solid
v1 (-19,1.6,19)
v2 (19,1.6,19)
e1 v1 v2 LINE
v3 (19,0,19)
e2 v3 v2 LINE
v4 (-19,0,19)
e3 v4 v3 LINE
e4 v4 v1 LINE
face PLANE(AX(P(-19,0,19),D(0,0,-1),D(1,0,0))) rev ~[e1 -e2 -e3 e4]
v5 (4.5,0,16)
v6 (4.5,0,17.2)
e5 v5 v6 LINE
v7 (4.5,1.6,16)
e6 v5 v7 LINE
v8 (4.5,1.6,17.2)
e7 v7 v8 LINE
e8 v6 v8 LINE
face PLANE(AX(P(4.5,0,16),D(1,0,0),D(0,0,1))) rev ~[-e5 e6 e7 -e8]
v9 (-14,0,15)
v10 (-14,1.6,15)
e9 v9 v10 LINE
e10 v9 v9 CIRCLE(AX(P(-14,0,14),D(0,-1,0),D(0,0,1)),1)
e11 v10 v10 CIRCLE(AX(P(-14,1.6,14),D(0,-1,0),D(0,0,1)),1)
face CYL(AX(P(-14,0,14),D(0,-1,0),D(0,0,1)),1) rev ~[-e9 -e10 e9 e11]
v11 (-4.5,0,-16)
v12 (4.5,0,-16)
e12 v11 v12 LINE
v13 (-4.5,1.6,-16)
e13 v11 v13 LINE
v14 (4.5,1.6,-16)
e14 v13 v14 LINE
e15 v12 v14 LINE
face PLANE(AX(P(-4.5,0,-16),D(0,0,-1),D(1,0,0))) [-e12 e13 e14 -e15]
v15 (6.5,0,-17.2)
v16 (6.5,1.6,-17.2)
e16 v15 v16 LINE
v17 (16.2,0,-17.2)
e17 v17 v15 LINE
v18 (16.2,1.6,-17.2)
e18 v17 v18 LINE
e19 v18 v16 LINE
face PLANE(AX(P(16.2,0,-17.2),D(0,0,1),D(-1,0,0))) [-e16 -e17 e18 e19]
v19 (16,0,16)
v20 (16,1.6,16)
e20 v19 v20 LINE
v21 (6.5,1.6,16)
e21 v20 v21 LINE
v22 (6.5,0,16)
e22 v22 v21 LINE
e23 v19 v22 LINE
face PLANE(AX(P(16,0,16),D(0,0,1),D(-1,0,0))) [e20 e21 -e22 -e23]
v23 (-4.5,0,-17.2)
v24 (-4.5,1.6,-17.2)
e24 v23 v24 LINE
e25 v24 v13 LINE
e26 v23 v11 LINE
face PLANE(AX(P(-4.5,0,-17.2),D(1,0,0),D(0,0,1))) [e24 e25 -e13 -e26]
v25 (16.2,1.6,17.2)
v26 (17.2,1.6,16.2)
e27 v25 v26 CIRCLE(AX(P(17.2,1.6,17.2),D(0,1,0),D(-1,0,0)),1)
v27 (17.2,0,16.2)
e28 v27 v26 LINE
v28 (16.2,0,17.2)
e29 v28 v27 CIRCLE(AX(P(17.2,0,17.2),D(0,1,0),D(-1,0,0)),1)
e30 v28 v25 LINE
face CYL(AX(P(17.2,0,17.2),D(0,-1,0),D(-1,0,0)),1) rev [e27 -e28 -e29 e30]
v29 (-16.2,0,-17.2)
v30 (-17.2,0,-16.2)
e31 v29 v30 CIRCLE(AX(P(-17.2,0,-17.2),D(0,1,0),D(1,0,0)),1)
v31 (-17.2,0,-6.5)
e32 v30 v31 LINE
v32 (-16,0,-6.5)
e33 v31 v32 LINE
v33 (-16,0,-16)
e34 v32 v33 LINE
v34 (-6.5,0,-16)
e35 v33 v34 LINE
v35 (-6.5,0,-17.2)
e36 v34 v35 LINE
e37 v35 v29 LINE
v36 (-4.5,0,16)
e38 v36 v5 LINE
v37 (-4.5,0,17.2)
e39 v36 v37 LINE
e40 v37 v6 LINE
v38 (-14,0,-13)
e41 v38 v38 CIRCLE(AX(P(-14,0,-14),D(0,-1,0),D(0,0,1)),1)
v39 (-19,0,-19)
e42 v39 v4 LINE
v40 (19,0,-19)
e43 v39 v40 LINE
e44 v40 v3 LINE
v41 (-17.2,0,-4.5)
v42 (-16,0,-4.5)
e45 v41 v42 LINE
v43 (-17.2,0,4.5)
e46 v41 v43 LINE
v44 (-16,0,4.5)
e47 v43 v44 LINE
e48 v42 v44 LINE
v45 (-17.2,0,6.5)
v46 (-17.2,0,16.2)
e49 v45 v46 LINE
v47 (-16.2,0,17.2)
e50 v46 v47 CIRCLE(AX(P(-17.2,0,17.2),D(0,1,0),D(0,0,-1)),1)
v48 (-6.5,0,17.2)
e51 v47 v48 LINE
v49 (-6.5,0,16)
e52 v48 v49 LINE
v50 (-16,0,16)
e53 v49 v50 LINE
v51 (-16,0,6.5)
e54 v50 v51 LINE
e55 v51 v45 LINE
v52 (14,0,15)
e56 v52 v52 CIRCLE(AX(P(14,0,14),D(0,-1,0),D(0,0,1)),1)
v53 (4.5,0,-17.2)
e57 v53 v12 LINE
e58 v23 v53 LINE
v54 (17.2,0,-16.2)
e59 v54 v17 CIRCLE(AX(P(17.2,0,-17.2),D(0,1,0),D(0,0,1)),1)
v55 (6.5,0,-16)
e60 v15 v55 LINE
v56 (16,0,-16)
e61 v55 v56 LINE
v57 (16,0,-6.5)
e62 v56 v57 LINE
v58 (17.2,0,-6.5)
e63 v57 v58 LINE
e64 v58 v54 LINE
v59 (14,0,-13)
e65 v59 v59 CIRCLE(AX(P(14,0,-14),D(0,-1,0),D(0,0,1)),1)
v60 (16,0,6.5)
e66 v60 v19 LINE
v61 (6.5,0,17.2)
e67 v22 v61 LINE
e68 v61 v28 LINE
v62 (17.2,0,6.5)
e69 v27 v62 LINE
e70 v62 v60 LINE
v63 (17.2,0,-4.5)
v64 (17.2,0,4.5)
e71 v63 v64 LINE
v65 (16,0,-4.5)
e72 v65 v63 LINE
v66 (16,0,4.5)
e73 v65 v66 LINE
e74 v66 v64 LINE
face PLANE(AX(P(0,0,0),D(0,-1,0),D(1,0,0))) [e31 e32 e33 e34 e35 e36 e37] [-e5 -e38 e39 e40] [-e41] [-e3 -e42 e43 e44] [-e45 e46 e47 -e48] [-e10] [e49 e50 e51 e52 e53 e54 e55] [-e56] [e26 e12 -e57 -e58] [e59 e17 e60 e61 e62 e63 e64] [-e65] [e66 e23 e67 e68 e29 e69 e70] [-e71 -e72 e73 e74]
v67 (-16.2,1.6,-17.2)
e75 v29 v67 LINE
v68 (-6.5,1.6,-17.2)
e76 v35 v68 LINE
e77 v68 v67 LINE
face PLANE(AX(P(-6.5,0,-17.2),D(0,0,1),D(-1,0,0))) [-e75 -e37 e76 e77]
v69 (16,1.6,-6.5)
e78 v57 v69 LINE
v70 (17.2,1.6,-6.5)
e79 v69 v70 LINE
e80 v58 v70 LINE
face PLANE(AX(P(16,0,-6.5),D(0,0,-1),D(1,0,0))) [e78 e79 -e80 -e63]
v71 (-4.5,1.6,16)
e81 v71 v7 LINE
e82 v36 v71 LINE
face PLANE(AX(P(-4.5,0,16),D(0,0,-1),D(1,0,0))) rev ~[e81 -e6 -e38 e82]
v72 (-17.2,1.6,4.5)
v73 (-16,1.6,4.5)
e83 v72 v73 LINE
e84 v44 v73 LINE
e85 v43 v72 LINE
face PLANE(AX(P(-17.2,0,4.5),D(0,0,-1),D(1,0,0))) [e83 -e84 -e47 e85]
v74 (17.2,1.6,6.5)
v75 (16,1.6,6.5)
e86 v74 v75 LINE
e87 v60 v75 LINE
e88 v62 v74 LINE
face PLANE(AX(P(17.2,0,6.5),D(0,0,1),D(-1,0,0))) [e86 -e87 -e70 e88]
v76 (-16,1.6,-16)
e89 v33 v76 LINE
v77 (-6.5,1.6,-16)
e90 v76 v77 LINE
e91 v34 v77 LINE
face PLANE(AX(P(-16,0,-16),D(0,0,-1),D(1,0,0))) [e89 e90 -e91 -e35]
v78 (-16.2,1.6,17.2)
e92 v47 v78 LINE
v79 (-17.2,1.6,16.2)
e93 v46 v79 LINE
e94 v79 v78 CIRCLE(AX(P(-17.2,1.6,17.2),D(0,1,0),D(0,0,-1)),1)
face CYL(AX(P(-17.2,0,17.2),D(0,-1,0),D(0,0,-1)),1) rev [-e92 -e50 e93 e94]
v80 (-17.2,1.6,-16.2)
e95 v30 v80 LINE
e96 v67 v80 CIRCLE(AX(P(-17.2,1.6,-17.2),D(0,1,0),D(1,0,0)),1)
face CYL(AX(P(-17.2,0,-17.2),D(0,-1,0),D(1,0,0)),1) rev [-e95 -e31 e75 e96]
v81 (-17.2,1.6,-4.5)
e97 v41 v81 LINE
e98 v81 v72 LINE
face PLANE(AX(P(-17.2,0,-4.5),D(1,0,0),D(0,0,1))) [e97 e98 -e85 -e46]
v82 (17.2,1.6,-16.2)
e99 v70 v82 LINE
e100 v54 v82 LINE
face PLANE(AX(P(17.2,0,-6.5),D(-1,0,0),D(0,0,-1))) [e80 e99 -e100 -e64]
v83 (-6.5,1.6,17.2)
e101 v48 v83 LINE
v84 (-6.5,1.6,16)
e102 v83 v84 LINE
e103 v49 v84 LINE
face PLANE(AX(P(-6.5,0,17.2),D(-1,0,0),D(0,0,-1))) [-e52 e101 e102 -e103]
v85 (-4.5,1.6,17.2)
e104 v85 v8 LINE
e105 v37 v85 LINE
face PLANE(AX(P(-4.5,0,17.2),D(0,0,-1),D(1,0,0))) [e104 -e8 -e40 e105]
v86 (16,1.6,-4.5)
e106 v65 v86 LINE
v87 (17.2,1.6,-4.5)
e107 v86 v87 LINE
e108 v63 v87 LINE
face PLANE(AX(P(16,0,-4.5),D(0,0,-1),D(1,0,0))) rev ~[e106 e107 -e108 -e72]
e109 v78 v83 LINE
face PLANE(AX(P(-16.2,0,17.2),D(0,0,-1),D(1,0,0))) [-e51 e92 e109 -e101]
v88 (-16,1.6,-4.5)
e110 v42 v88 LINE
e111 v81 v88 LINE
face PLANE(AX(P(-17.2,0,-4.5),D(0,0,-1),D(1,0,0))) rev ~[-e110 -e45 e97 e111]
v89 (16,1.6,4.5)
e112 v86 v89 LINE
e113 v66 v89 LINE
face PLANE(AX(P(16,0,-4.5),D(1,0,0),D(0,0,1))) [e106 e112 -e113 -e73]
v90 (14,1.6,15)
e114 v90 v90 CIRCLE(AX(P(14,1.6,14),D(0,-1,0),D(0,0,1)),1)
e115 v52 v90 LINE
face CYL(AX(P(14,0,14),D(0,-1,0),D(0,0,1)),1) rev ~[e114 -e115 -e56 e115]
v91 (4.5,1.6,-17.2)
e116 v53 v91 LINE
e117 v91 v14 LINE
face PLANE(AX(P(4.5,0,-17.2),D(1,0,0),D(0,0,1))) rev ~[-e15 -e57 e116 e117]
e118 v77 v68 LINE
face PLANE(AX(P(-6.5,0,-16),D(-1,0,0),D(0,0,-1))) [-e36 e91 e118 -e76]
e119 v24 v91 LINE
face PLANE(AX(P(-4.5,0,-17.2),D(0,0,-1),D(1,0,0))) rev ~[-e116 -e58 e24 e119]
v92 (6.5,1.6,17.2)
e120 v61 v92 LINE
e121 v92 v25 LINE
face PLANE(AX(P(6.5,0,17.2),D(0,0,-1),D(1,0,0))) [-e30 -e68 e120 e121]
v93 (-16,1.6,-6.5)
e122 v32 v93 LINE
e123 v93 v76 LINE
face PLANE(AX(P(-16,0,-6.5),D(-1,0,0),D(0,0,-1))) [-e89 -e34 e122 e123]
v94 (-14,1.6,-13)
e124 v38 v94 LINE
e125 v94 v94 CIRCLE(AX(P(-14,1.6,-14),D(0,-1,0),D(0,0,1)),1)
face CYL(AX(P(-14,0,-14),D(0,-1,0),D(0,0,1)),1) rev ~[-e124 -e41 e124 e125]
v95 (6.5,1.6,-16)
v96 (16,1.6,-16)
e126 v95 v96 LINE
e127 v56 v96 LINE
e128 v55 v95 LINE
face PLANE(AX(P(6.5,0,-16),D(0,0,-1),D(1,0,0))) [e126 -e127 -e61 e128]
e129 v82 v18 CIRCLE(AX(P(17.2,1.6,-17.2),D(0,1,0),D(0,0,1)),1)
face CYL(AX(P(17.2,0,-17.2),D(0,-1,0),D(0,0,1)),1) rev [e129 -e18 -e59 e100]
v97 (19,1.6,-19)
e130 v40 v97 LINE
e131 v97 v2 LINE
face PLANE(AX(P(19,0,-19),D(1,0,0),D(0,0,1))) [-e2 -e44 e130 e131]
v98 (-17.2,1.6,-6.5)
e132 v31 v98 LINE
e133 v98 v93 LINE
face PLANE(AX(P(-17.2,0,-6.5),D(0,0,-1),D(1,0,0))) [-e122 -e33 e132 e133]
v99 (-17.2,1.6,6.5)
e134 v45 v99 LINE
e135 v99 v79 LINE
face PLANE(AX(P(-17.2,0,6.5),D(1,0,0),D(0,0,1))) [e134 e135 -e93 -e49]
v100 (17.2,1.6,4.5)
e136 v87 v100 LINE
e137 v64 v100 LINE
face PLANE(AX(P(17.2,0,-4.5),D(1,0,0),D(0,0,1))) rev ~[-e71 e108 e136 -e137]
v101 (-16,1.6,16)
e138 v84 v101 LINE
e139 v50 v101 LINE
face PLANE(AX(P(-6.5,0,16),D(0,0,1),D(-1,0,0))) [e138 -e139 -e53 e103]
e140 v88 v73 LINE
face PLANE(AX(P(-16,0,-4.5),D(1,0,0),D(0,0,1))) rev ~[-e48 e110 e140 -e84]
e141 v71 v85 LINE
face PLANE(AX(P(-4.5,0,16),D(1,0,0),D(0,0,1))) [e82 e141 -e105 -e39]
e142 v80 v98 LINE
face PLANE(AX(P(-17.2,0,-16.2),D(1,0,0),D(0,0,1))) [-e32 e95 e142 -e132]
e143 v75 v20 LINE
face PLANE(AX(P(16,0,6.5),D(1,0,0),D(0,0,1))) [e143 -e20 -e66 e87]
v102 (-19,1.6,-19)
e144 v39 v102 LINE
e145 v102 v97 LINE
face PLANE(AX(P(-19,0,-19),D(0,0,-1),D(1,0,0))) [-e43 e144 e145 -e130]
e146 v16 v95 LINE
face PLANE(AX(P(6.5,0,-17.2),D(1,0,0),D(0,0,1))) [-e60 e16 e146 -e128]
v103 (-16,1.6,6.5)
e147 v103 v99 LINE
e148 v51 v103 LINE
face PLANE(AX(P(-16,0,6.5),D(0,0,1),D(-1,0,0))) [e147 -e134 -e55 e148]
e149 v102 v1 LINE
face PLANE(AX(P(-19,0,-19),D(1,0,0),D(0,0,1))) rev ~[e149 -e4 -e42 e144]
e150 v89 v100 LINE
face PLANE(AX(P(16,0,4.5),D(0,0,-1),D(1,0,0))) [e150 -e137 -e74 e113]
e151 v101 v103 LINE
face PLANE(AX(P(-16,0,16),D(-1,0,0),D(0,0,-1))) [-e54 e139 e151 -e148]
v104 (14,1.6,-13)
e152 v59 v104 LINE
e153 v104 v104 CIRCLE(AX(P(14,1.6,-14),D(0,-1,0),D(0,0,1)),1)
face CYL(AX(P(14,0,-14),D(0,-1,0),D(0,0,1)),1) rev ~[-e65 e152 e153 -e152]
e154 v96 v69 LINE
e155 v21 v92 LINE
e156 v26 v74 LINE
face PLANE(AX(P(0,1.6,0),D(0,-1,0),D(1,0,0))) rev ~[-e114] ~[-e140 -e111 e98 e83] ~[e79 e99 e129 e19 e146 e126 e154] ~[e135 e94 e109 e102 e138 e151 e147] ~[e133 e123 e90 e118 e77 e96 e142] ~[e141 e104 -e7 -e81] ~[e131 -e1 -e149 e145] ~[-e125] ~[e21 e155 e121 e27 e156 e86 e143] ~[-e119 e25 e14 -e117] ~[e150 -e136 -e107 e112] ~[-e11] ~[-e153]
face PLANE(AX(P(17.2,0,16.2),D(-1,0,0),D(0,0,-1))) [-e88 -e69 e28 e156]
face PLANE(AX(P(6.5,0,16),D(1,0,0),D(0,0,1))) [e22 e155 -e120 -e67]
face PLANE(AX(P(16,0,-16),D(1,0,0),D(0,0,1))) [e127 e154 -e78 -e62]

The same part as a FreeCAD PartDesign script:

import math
import FreeCAD as App
import Part
import Sketcher

V = App.Vector


def add_polygon(sketch, points):
    """Adds a closed chain of lines whose ends are joined by coincident constraints."""
    first, n = sketch.GeometryCount, len(points)
    for a, b in zip(points, points[1:] + points[:1]):
        sketch.addGeometry(Part.LineSegment(App.Vector(*a, 0), App.Vector(*b, 0)), False)
    for i in range(n):
        sketch.addConstraint(Sketcher.Constraint("Coincident", first + i, 2, first + (i + 1) % n, 1))

doc = App.newDocument("Part")
body = doc.addObject("PartDesign::Body", "Body")

sketch1 = doc.addObject("Sketcher::SketchObject", "Sketch")
body.addObject(sketch1)
sketch1.AttachmentSupport = (doc.XZ_Plane, [""])
sketch1.MapMode = "FlatFace"
add_polygon(sketch1, [(-19, 19), (-19, -19), (19, -19), (19, 19)])
sketch1.addGeometry(Part.Circle(V(-14, -14, 0), V(0, 0, 1), 1), False)
sketch1.addGeometry(Part.LineSegment(V(-6.5, -16, 0), V(-6.5, -17.2, 0)), False)
sketch1.addGeometry(Part.LineSegment(V(-6.5, -17.2, 0), V(-16.2, -17.2, 0)), False)
sketch1.addGeometry(Part.ArcOfCircle(Part.Circle(V(-17.2, -17.2, 0), V(0, 0, 1), 1), math.radians(90), math.radians(360)), False)
sketch1.addGeometry(Part.LineSegment(V(-17.2, -16.2, 0), V(-17.2, -6.5, 0)), False)
sketch1.addGeometry(Part.LineSegment(V(-17.2, -6.5, 0), V(-16, -6.5, 0)), False)
sketch1.addGeometry(Part.LineSegment(V(-16, -6.5, 0), V(-16, -16, 0)), False)
sketch1.addGeometry(Part.LineSegment(V(-16, -16, 0), V(-6.5, -16, 0)), False)
add_polygon(sketch1, [(4.5, -17.2), (-4.5, -17.2), (-4.5, -16), (4.5, -16)])
sketch1.addGeometry(Part.Circle(V(14, -14, 0), V(0, 0, 1), 1), False)
sketch1.addGeometry(Part.LineSegment(V(6.5, -17.2, 0), V(6.5, -16, 0)), False)
sketch1.addGeometry(Part.LineSegment(V(6.5, -16, 0), V(16, -16, 0)), False)
sketch1.addGeometry(Part.LineSegment(V(16, -16, 0), V(16, -6.5, 0)), False)
sketch1.addGeometry(Part.LineSegment(V(16, -6.5, 0), V(17.2, -6.5, 0)), False)
sketch1.addGeometry(Part.LineSegment(V(17.2, -6.5, 0), V(17.2, -16.2, 0)), False)
sketch1.addGeometry(Part.ArcOfCircle(Part.Circle(V(17.2, -17.2, 0), V(0, 0, 1), 1), math.radians(180), math.radians(450)), False)
sketch1.addGeometry(Part.LineSegment(V(16.2, -17.2, 0), V(6.5, -17.2, 0)), False)
add_polygon(sketch1, [(-16, -4.5), (-17.2, -4.5), (-17.2, 4.5), (-16, 4.5)])
sketch1.addGeometry(Part.LineSegment(V(-6.5, 16, 0), V(-16, 16, 0)), False)
sketch1.addGeometry(Part.LineSegment(V(-16, 16, 0), V(-16, 6.5, 0)), False)
sketch1.addGeometry(Part.LineSegment(V(-16, 6.5, 0), V(-17.2, 6.5, 0)), False)
sketch1.addGeometry(Part.LineSegment(V(-17.2, 6.5, 0), V(-17.2, 16.2, 0)), False)
sketch1.addGeometry(Part.ArcOfCircle(Part.Circle(V(-17.2, 17.2, 0), V(0, 0, 1), 1), math.radians(0), math.radians(270)), False)
sketch1.addGeometry(Part.LineSegment(V(-16.2, 17.2, 0), V(-6.5, 17.2, 0)), False)
sketch1.addGeometry(Part.LineSegment(V(-6.5, 17.2, 0), V(-6.5, 16, 0)), False)
sketch1.addGeometry(Part.Circle(V(-14, 14, 0), V(0, 0, 1), 1), False)
add_polygon(sketch1, [(17.2, -4.5), (16, -4.5), (16, 4.5), (17.2, 4.5)])
add_polygon(sketch1, [(4.5, 16), (-4.5, 16), (-4.5, 17.2), (4.5, 17.2)])
sketch1.addGeometry(Part.LineSegment(V(6.5, 16, 0), V(6.5, 17.2, 0)), False)
sketch1.addGeometry(Part.LineSegment(V(6.5, 17.2, 0), V(16.2, 17.2, 0)), False)
sketch1.addGeometry(Part.ArcOfCircle(Part.Circle(V(17.2, 17.2, 0), V(0, 0, 1), 1), math.radians(-90), math.radians(180)), False)
sketch1.addGeometry(Part.LineSegment(V(17.2, 16.2, 0), V(17.2, 6.5, 0)), False)
sketch1.addGeometry(Part.LineSegment(V(17.2, 6.5, 0), V(16, 6.5, 0)), False)
sketch1.addGeometry(Part.LineSegment(V(16, 6.5, 0), V(16, 16, 0)), False)
sketch1.addGeometry(Part.LineSegment(V(16, 16, 0), V(6.5, 16, 0)), False)
sketch1.addGeometry(Part.Circle(V(14, 14, 0), V(0, 0, 1), 1), False)
sketch1.addConstraint(Sketcher.Constraint("Coincident", 5, 2, 6, 1))
sketch1.addConstraint(Sketcher.Constraint("Coincident", 6, 2, 7, 2))
sketch1.addConstraint(Sketcher.Constraint("Coincident", 7, 1, 8, 1))
sketch1.addConstraint(Sketcher.Constraint("Coincident", 8, 2, 9, 1))
sketch1.addConstraint(Sketcher.Constraint("Coincident", 9, 2, 10, 1))
sketch1.addConstraint(Sketcher.Constraint("Coincident", 10, 2, 11, 1))
sketch1.addConstraint(Sketcher.Constraint("Coincident", 11, 2, 5, 1))
sketch1.addConstraint(Sketcher.Constraint("Coincident", 17, 2, 18, 1))
sketch1.addConstraint(Sketcher.Constraint("Coincident", 18, 2, 19, 1))
sketch1.addConstraint(Sketcher.Constraint("Coincident", 19, 2, 20, 1))
sketch1.addConstraint(Sketcher.Constraint("Coincident", 20, 2, 21, 1))
sketch1.addConstraint(Sketcher.Constraint("Coincident", 21, 2, 22, 2))
sketch1.addConstraint(Sketcher.Constraint("Coincident", 22, 1, 23, 1))
sketch1.addConstraint(Sketcher.Constraint("Coincident", 23, 2, 17, 1))
sketch1.addConstraint(Sketcher.Constraint("Coincident", 28, 2, 29, 1))
sketch1.addConstraint(Sketcher.Constraint("Coincident", 29, 2, 30, 1))
sketch1.addConstraint(Sketcher.Constraint("Coincident", 30, 2, 31, 1))
sketch1.addConstraint(Sketcher.Constraint("Coincident", 31, 2, 32, 2))
sketch1.addConstraint(Sketcher.Constraint("Coincident", 32, 1, 33, 1))
sketch1.addConstraint(Sketcher.Constraint("Coincident", 33, 2, 34, 1))
sketch1.addConstraint(Sketcher.Constraint("Coincident", 34, 2, 28, 1))
sketch1.addConstraint(Sketcher.Constraint("Coincident", 44, 2, 45, 1))
sketch1.addConstraint(Sketcher.Constraint("Coincident", 45, 2, 46, 2))
sketch1.addConstraint(Sketcher.Constraint("Coincident", 46, 1, 47, 1))
sketch1.addConstraint(Sketcher.Constraint("Coincident", 47, 2, 48, 1))
sketch1.addConstraint(Sketcher.Constraint("Coincident", 48, 2, 49, 1))
sketch1.addConstraint(Sketcher.Constraint("Coincident", 49, 2, 50, 1))
sketch1.addConstraint(Sketcher.Constraint("Coincident", 50, 2, 44, 1))
sketch1.addConstraint(Sketcher.Constraint("Vertical", 0))
sketch1.addConstraint(Sketcher.Constraint("Horizontal", 1))
sketch1.addConstraint(Sketcher.Constraint("Vertical", 2))
sketch1.addConstraint(Sketcher.Constraint("Horizontal", 3))
sketch1.addConstraint(Sketcher.Constraint("Vertical", 5))
sketch1.addConstraint(Sketcher.Constraint("Horizontal", 6))
sketch1.addConstraint(Sketcher.Constraint("Vertical", 8))
sketch1.addConstraint(Sketcher.Constraint("Horizontal", 9))
sketch1.addConstraint(Sketcher.Constraint("Vertical", 10))
sketch1.addConstraint(Sketcher.Constraint("Horizontal", 11))
sketch1.addConstraint(Sketcher.Constraint("Horizontal", 12))
sketch1.addConstraint(Sketcher.Constraint("Vertical", 13))
sketch1.addConstraint(Sketcher.Constraint("Horizontal", 14))
sketch1.addConstraint(Sketcher.Constraint("Vertical", 15))
sketch1.addConstraint(Sketcher.Constraint("Vertical", 17))
sketch1.addConstraint(Sketcher.Constraint("Horizontal", 18))
sketch1.addConstraint(Sketcher.Constraint("Vertical", 19))
sketch1.addConstraint(Sketcher.Constraint("Horizontal", 20))
sketch1.addConstraint(Sketcher.Constraint("Vertical", 21))
sketch1.addConstraint(Sketcher.Constraint("Horizontal", 23))
sketch1.addConstraint(Sketcher.Constraint("Horizontal", 24))
sketch1.addConstraint(Sketcher.Constraint("Vertical", 25))
sketch1.addConstraint(Sketcher.Constraint("Horizontal", 26))
sketch1.addConstraint(Sketcher.Constraint("Vertical", 27))
sketch1.addConstraint(Sketcher.Constraint("Horizontal", 28))
sketch1.addConstraint(Sketcher.Constraint("Vertical", 29))
sketch1.addConstraint(Sketcher.Constraint("Horizontal", 30))
sketch1.addConstraint(Sketcher.Constraint("Vertical", 31))
sketch1.addConstraint(Sketcher.Constraint("Horizontal", 33))
sketch1.addConstraint(Sketcher.Constraint("Vertical", 34))
sketch1.addConstraint(Sketcher.Constraint("Horizontal", 36))
sketch1.addConstraint(Sketcher.Constraint("Vertical", 37))
sketch1.addConstraint(Sketcher.Constraint("Horizontal", 38))
sketch1.addConstraint(Sketcher.Constraint("Vertical", 39))
sketch1.addConstraint(Sketcher.Constraint("Horizontal", 40))
sketch1.addConstraint(Sketcher.Constraint("Vertical", 41))
sketch1.addConstraint(Sketcher.Constraint("Horizontal", 42))
sketch1.addConstraint(Sketcher.Constraint("Vertical", 43))
sketch1.addConstraint(Sketcher.Constraint("Vertical", 44))
sketch1.addConstraint(Sketcher.Constraint("Horizontal", 45))
sketch1.addConstraint(Sketcher.Constraint("Vertical", 47))
sketch1.addConstraint(Sketcher.Constraint("Horizontal", 48))
sketch1.addConstraint(Sketcher.Constraint("Vertical", 49))
sketch1.addConstraint(Sketcher.Constraint("Horizontal", 50))
sketch1.addConstraint(Sketcher.Constraint("Equal", 4, 7))
sketch1.addConstraint(Sketcher.Constraint("Equal", 7, 16))
sketch1.addConstraint(Sketcher.Constraint("Equal", 16, 22))
sketch1.addConstraint(Sketcher.Constraint("Equal", 22, 32))
sketch1.addConstraint(Sketcher.Constraint("Equal", 32, 35))
sketch1.addConstraint(Sketcher.Constraint("Equal", 35, 46))
sketch1.addConstraint(Sketcher.Constraint("Equal", 46, 51))
sketch1.addConstraint(Sketcher.Constraint("Symmetric", 22, 3, 32, 3, -1, 1))
sketch1.addConstraint(Sketcher.Constraint("Symmetric", 16, 3, 35, 3, -1, 1))
sketch1.addConstraint(Sketcher.Constraint("Symmetric", 7, 3, 46, 3, -1, 1))
sketch1.addConstraint(Sketcher.Constraint("Symmetric", 4, 3, 51, 3, -1, 1))
sketch1.addConstraint(Sketcher.Constraint("Symmetric", 0, 2, 2, 2, -1, 1))
sketch1.addConstraint(Sketcher.Constraint("Symmetric", 18, 2, 28, 2, -1, 1))
sketch1.addConstraint(Sketcher.Constraint("Symmetric", 20, 2, 30, 2, -1, 1))
sketch1.addConstraint(Sketcher.Constraint("Symmetric", 23, 2, 33, 2, -1, 1))
sketch1.addConstraint(Sketcher.Constraint("Symmetric", 26, 2, 36, 2, -1, 1))
sketch1.addConstraint(Sketcher.Constraint("Symmetric", 24, 2, 38, 2, -1, 1))
sketch1.addConstraint(Sketcher.Constraint("Symmetric", 14, 2, 40, 2, -1, 1))
sketch1.addConstraint(Sketcher.Constraint("Symmetric", 12, 2, 42, 2, -1, 1))
sketch1.addConstraint(Sketcher.Constraint("Symmetric", 5, 2, 44, 2, -1, 1))
sketch1.addConstraint(Sketcher.Constraint("Symmetric", 8, 2, 47, 2, -1, 1))
sketch1.addConstraint(Sketcher.Constraint("Symmetric", 10, 2, 49, 2, -1, 1))
sketch1.addConstraint(Sketcher.Constraint("Symmetric", 4, 3, 16, 3, -2))
sketch1.addConstraint(Sketcher.Constraint("Symmetric", 7, 3, 22, 3, -2))
sketch1.addConstraint(Sketcher.Constraint("Symmetric", 11, 2, 17, 2, -2))
sketch1.addConstraint(Sketcher.Constraint("Symmetric", 9, 2, 19, 2, -2))
sketch1.addConstraint(Sketcher.Constraint("Horizontal", 22, 3, 5, 2))
sketch1.addConstraint(Sketcher.Constraint("Horizontal", 6, 2, 12, 2))
sketch1.addConstraint(Sketcher.Constraint("Horizontal", 11, 2, 13, 2))
sketch1.addConstraint(Sketcher.Constraint("Horizontal", 15, 2, 22, 1))
sketch1.addConstraint(Sketcher.Constraint("Horizontal", 27, 2, 36, 2))
sketch1.addConstraint(Sketcher.Constraint("Vertical", 32, 3, 7, 1))
sketch1.addConstraint(Sketcher.Constraint("Vertical", 46, 3, 20, 2))
sketch1.addConstraint(Sketcher.Constraint("Vertical", 8, 2, 24, 2))
sketch1.addConstraint(Sketcher.Constraint("Vertical", 10, 2, 26, 2))
sketch1.addConstraint(Sketcher.Constraint("Vertical", 13, 2, 40, 2))
sketch1.addConstraint(Sketcher.Constraint("Equal", 3, 0))
sketch1.addConstraint(Sketcher.Constraint("Equal", 48, 5))
sketch1.addConstraint(Sketcher.Constraint("Equal", 45, 8))
sketch1.addConstraint(Sketcher.Constraint("Equal", 42, 25))
sketch1.addConstraint(Sketcher.Constraint("Diameter", 4, 2.0))
sketch1.addConstraint(Sketcher.Constraint("DistanceX", 1, 1, 1, 2, 38.0))
sketch1.addConstraint(Sketcher.Constraint("DistanceX", 12, 2, 12, 1, 9.0))
sketch1.addConstraint(Sketcher.Constraint("DistanceX", 6, 2, 6, 1, 9.7))
sketch1.addConstraint(Sketcher.Constraint("DistanceX", 9, 1, 9, 2, 1.2))
sketch1.addConstraint(Sketcher.Constraint("DistanceX", 4, 3, -1, 1, 14.0))
sketch1.addConstraint(Sketcher.Constraint("DistanceY", 4, 3, -1, 1, 14.0))
sketch1.addConstraint(Sketcher.Constraint("DistanceX", 9, 2, -1, 1, 16.0))
sketch1.addConstraint(Sketcher.Constraint("DistanceY", 10, 2, -1, 1, 16.0))
pad1 = doc.addObject("PartDesign::Pad", "Pad")
body.addObject(pad1)
pad1.Profile = sketch1
pad1.Length = 1.6
pad1.Reversed = True

doc.recompute()
